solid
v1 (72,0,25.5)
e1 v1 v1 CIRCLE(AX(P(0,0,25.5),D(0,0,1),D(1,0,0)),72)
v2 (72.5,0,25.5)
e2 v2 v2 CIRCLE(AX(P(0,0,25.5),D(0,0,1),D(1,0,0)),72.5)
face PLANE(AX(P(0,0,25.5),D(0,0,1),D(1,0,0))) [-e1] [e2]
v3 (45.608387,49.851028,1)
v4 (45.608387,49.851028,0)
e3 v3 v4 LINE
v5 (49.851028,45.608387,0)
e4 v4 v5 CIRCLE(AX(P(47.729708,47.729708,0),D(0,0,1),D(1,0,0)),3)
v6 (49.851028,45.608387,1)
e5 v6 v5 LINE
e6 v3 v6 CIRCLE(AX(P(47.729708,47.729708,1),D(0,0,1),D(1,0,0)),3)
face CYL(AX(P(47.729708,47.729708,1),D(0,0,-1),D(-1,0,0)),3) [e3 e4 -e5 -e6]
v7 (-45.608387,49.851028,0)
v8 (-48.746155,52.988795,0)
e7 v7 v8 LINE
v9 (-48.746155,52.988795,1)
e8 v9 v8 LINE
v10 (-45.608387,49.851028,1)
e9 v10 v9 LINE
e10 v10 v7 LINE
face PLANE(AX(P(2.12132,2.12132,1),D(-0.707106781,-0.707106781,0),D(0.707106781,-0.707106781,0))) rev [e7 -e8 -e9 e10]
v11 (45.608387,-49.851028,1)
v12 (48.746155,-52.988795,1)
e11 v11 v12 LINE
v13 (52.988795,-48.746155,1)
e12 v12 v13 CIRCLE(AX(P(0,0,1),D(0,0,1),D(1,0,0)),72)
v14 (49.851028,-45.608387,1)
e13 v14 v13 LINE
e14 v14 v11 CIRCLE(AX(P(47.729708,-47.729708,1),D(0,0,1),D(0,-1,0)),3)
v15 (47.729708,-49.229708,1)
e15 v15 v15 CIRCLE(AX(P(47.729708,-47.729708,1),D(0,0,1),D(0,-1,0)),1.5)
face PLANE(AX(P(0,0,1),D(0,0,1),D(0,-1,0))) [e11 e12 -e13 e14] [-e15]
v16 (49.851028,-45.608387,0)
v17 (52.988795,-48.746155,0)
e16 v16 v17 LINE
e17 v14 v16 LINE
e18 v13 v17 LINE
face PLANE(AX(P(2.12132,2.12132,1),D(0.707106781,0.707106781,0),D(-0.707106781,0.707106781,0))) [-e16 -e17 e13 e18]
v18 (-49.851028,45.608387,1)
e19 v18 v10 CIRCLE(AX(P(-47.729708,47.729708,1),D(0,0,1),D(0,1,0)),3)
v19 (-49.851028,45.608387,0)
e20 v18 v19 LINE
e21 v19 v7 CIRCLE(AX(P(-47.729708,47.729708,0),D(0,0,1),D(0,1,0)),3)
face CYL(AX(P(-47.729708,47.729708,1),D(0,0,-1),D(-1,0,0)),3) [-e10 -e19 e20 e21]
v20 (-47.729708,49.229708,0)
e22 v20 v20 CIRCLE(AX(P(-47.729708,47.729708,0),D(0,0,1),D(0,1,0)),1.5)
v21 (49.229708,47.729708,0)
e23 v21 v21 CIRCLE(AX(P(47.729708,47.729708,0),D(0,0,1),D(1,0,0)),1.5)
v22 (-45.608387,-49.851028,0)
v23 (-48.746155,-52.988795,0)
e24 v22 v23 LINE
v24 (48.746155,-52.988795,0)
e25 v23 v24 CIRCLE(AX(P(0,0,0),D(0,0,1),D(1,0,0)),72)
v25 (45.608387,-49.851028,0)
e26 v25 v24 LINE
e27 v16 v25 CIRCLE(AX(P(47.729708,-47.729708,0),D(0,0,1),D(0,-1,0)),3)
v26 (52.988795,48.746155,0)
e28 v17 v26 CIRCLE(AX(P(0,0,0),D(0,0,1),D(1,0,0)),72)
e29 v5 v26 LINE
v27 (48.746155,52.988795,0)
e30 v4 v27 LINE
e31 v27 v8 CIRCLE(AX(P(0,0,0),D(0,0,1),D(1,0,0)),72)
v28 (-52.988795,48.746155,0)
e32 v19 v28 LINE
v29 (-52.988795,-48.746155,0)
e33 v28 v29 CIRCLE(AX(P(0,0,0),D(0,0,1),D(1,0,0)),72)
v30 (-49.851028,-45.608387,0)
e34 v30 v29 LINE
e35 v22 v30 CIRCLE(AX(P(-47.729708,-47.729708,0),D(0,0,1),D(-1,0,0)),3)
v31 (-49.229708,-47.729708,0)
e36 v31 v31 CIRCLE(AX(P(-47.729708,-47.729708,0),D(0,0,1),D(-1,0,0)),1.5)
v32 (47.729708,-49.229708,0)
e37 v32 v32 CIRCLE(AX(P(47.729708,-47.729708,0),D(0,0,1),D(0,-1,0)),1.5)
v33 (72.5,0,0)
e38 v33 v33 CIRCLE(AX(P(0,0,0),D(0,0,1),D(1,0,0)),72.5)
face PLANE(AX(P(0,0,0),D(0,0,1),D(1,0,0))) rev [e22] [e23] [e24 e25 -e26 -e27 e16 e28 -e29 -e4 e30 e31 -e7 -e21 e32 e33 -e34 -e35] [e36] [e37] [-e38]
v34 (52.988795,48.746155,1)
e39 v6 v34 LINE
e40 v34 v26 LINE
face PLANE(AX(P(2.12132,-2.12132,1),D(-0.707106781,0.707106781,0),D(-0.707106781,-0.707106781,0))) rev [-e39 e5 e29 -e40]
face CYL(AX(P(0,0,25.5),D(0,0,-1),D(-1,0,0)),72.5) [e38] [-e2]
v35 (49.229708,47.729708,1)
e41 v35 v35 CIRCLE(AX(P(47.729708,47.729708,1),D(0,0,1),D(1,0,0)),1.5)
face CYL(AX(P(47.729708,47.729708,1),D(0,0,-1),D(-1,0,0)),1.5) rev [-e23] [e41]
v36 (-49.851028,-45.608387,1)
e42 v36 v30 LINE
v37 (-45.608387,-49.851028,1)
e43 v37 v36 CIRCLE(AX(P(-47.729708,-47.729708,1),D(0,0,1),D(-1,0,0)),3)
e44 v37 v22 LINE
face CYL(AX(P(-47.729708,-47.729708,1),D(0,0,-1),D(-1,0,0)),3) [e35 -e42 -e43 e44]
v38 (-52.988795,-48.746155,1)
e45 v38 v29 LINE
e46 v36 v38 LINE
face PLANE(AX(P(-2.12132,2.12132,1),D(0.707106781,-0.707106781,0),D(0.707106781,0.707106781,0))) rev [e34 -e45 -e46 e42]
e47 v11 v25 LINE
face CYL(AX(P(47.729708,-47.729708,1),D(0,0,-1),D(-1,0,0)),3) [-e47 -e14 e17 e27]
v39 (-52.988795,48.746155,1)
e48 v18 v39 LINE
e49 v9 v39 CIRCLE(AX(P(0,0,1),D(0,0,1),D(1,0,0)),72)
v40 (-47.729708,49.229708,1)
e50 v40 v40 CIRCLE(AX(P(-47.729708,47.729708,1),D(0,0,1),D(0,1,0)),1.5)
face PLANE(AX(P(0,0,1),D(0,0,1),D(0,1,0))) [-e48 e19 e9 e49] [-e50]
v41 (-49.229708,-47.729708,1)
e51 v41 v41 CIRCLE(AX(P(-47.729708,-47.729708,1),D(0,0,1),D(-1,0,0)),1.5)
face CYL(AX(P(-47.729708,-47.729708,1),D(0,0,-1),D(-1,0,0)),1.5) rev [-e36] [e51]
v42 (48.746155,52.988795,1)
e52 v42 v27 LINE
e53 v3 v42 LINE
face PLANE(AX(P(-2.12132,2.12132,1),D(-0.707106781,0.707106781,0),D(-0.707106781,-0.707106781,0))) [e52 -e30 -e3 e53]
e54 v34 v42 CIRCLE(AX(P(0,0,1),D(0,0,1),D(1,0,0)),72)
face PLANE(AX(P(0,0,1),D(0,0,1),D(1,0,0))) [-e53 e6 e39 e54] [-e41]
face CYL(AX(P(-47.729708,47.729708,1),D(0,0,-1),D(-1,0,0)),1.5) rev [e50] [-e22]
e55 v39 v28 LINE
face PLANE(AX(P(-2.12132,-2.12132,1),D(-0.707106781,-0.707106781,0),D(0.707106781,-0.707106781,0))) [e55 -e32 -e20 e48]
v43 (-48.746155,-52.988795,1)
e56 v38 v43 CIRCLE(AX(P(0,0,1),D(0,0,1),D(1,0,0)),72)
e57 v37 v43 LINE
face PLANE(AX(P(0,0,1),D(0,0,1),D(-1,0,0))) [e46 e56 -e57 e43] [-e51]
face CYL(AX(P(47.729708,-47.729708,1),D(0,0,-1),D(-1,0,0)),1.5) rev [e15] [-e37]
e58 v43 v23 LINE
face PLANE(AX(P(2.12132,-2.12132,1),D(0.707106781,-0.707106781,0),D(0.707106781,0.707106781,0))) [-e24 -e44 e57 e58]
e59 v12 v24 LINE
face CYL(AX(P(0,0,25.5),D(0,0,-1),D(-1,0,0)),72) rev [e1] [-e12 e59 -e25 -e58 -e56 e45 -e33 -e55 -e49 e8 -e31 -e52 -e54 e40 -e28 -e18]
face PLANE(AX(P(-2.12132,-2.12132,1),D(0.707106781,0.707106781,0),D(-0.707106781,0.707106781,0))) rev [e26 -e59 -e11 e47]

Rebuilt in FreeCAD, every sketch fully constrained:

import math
import FreeCAD as App
import Part
import Sketcher
Q = App.Units.Quantity

doc = App.newDocument("Part")
body = doc.addObject("PartDesign::Body", "Body")

sketch1 = doc.addObject("Sketcher::SketchObject", "Sketch")
body.addObject(sketch1)
sketch1.AttachmentSupport = (doc.XY_Plane, [""])
sketch1.MapMode = "FlatFace"
sketch1.addGeometry([
    Part.Circle(App.Vector(0, 0, 0), App.Vector(0, 0, 1), 72.5),
    Part.Circle(App.Vector(0, 0, 0), App.Vector(0, 0, 1), 72),
], False)
sketch1.addConstraint([
    Sketcher.Constraint("Coincident", 0, 3, -1, 1),
    Sketcher.Constraint("Coincident", 1, 3, -1, 1),
    Sketcher.Constraint("Diameter", 0, 145.0),
    Sketcher.Constraint("Diameter", 1, 144.0),
])
pad1 = doc.addObject("PartDesign::Pad", "Pad")
body.addObject(pad1)
pad1.Profile = sketch1
pad1.Length = 25.5

sketch2 = doc.addObject("Sketcher::SketchObject", "Sketch001")
body.addObject(sketch2)
sketch2.AttachmentSupport = (doc.XY_Plane, [""])
sketch2.MapMode = "FlatFace"
sketch2.addGeometry([
    Part.LineSegment(App.Vector(48.790368, 53.033009, 0), App.Vector(45.608387, 49.851028, 0)),
    Part.ArcOfCircle(Part.Circle(App.Vector(47.729708, 47.729708, 0), App.Vector(0, 0, 1), 3), math.radians(135), math.radians(315)),
    Part.LineSegment(App.Vector(49.851028, 45.608387, 0), App.Vector(53.033009, 48.790368, 0)),
    Part.LineSegment(App.Vector(53.033009, 48.790368, 0), App.Vector(48.790368, 53.033009, 0)),
    Part.Circle(App.Vector(47.729708, 47.729708, 0), App.Vector(0, 0, 1), 1.5),
], False)
sketch2.addConstraint([
    Sketcher.Constraint("Tangent", 0, 2, 1, 1),
    Sketcher.Constraint("Tangent", 1, 2, 2, 1),
    Sketcher.Constraint("Coincident", 2, 2, 3, 1),
    Sketcher.Constraint("Coincident", 3, 2, 0, 1),
    Sketcher.Constraint("Coincident", 4, 3, 1, 3),
    Sketcher.Constraint("Parallel", 0, 2),
    Sketcher.Constraint("Perpendicular", 2, 3),
    Sketcher.Constraint("Diameter", 4, 3.0),
    Sketcher.Constraint("Radius", 1, 3.0),
    Sketcher.Constraint("Angle", 0, Q("-135 deg")),
    Sketcher.Constraint("Distance", 0, 4.5),
    Sketcher.Constraint("DistanceY", -1, 1, 0, 2, 49.851028),
    Sketcher.Constraint("DistanceX", -1, 1, 1, 2, 49.851028),
])
pad2 = doc.addObject("PartDesign::Pad", "Pad001")
body.addObject(pad2)
pad2.Profile = sketch2
pad2.Length = 1
doc.recompute()

polarpattern = doc.addObject("PartDesign::PolarPattern", "PolarPattern")
body.addObject(polarpattern)
polarpattern.Originals = [pad2]
polarpattern.Axis = (doc.Z_Axis, [""])
polarpattern.Angle = 360
polarpattern.Occurrences = 4
body.Tip = polarpattern

doc.recompute()
